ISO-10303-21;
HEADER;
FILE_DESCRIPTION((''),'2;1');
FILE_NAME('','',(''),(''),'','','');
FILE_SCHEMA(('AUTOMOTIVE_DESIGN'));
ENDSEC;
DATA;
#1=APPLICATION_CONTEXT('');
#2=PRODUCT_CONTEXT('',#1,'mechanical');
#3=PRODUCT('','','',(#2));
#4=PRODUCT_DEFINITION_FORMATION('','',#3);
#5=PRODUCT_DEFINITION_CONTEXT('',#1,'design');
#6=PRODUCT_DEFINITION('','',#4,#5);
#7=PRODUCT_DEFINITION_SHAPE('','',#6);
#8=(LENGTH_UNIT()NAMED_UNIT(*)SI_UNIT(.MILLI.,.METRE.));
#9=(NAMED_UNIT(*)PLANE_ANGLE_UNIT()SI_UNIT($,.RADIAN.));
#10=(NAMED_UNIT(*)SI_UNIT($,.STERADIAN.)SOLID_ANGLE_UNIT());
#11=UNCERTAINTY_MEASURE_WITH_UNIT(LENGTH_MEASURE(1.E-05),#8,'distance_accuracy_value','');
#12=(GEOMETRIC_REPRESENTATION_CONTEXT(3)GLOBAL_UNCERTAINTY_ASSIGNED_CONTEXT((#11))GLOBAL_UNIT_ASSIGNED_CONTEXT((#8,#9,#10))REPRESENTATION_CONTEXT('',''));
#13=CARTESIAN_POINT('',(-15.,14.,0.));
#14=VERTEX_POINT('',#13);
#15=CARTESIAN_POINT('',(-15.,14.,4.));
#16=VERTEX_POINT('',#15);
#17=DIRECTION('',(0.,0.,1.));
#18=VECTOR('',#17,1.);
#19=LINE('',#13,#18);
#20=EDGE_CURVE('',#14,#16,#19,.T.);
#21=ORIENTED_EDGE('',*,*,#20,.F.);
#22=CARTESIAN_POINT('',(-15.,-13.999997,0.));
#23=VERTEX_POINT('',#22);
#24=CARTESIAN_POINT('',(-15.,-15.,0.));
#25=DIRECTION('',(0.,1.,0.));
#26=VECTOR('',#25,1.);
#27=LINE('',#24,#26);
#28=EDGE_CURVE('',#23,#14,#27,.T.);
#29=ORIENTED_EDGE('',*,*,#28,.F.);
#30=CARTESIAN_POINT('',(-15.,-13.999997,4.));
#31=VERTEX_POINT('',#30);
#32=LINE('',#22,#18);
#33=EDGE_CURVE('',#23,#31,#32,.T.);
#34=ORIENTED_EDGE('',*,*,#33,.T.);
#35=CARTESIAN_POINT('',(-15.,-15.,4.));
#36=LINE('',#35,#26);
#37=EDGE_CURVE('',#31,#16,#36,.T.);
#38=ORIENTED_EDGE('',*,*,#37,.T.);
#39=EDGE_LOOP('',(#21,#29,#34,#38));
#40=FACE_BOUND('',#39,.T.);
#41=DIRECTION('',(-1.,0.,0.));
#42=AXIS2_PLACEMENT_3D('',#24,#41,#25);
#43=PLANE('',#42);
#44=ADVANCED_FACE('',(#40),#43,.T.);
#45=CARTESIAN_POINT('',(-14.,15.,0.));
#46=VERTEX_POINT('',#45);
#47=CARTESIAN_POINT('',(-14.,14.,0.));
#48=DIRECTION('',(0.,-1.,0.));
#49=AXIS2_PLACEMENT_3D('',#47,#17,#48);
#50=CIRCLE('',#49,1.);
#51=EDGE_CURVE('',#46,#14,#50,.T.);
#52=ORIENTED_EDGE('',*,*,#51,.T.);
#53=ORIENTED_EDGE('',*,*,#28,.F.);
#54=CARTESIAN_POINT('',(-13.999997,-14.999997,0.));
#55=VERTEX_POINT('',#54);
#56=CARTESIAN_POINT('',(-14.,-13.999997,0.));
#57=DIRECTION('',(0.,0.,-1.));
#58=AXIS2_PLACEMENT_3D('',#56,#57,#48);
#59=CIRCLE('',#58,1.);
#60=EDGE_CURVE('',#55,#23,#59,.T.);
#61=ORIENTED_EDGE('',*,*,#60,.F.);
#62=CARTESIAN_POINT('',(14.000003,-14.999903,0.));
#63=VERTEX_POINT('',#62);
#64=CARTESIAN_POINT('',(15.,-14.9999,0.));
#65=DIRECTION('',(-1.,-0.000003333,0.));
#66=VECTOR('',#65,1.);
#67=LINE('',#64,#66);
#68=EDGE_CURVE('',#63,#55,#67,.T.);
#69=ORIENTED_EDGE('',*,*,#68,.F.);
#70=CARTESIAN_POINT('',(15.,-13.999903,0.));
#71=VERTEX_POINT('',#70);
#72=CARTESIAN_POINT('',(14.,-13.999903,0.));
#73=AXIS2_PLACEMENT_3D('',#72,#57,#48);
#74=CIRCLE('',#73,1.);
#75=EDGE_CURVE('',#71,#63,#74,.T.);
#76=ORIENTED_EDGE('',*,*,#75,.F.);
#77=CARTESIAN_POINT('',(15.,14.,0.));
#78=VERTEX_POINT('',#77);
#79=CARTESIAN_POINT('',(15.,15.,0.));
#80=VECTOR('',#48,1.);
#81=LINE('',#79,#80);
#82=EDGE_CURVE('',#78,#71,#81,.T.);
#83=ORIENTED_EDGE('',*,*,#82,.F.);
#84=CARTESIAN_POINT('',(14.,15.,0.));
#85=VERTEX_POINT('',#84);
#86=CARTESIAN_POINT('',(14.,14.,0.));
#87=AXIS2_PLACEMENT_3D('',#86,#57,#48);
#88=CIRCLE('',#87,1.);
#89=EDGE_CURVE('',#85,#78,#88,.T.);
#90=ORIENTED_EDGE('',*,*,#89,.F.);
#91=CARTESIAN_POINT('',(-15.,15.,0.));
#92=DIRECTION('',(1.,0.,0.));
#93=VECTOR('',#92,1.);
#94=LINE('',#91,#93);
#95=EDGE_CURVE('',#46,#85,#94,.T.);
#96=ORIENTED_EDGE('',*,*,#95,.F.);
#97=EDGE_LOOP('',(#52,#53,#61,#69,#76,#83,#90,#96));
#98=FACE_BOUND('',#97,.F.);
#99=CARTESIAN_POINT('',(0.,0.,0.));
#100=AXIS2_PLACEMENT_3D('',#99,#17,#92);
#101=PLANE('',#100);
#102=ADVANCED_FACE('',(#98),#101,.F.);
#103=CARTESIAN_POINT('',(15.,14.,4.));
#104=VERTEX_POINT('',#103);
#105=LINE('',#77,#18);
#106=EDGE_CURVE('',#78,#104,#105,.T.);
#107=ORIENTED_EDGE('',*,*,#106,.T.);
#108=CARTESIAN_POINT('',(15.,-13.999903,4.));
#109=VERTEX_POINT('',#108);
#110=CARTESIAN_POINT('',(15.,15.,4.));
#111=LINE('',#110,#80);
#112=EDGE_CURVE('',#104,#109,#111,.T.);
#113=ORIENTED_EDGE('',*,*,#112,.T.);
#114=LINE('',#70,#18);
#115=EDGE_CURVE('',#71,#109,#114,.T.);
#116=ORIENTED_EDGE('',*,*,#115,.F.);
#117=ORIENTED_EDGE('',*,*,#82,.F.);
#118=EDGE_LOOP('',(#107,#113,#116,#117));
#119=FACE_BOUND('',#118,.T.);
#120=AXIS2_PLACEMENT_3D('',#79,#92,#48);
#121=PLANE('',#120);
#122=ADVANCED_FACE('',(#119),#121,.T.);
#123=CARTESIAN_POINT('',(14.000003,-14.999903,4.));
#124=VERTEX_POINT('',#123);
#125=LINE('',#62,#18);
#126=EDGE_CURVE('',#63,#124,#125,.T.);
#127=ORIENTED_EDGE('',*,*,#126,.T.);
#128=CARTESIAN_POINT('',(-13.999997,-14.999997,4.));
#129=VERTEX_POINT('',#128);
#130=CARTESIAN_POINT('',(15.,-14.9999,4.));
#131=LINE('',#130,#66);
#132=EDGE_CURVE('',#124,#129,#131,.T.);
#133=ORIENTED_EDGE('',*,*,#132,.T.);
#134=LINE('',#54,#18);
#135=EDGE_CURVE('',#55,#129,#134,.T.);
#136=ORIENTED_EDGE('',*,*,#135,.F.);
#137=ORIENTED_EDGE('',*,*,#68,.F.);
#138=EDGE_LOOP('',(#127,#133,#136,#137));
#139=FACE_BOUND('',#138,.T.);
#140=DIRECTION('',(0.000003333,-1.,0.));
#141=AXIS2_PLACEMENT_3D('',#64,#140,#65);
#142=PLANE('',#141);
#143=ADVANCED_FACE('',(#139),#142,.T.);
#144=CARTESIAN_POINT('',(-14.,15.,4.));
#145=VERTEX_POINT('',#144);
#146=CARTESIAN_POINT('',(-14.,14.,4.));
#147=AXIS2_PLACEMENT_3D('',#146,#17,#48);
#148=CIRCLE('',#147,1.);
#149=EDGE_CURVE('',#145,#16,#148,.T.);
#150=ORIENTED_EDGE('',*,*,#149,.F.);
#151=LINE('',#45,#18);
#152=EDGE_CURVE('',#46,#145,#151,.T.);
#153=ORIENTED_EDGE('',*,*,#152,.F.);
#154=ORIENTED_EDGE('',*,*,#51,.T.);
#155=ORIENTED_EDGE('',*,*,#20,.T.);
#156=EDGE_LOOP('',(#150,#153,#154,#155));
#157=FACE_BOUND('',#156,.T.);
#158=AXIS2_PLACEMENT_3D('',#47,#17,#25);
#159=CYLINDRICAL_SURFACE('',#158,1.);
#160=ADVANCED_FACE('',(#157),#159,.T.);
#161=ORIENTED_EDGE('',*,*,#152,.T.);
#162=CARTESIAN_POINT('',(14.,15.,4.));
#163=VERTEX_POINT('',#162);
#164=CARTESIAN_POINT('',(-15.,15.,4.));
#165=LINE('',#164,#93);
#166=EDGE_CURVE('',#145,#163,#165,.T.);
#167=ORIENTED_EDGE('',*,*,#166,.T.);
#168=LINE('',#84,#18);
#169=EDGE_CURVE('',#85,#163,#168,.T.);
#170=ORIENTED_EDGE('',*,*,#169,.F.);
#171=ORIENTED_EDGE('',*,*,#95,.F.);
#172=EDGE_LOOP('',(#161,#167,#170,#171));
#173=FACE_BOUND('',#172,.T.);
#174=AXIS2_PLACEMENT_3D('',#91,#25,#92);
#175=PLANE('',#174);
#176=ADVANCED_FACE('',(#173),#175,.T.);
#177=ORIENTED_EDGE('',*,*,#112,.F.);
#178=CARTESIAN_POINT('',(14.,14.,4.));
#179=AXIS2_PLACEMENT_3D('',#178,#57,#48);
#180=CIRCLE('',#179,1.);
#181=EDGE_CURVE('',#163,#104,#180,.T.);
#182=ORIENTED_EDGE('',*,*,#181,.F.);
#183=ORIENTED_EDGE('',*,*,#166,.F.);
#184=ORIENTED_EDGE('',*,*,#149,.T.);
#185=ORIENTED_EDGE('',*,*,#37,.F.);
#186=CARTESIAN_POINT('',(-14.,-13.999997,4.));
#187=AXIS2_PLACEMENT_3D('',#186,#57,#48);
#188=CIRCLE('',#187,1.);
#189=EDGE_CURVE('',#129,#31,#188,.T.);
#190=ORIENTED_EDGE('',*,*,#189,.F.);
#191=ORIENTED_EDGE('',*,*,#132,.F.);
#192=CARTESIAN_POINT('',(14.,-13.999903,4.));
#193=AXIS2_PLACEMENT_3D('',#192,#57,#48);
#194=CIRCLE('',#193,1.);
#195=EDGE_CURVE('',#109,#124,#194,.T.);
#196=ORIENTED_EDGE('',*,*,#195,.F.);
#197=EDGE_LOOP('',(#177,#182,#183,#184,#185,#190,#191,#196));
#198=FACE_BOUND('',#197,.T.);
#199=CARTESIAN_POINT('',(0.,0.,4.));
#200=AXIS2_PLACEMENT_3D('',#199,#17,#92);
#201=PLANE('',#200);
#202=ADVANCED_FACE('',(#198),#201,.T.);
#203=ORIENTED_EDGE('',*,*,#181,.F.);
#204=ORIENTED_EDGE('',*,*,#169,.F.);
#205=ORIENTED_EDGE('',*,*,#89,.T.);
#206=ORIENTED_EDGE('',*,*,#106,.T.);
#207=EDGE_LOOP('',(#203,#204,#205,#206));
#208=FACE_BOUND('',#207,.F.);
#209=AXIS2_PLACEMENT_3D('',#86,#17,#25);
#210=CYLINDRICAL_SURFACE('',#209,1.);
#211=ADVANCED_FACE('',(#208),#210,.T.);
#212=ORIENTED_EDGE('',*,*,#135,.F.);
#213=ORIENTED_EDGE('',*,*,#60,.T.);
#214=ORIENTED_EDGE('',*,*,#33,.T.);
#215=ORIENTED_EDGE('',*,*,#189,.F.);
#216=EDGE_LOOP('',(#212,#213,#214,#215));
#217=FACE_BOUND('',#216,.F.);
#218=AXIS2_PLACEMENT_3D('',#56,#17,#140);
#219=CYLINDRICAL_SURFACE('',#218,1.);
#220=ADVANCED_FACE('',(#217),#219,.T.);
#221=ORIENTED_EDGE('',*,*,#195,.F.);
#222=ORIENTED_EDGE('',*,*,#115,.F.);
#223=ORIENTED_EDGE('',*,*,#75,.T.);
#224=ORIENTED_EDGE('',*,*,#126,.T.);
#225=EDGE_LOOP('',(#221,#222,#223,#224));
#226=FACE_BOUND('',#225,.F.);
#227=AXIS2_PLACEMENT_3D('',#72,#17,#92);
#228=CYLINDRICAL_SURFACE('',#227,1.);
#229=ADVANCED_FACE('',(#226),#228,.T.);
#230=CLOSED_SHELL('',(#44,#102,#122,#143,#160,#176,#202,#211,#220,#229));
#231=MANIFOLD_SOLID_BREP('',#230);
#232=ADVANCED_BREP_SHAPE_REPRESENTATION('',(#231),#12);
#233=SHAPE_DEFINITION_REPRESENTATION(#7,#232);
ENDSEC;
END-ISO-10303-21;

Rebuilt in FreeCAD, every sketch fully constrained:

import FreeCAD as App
import Part
import Sketcher

V = App.Vector
Q = App.Units.Quantity


def edges_at(feature, points):
    """Names of the edges that pass closest to the given points."""
    edges = feature.Shape.Edges
    near = lambda p: min(range(len(edges)), key=lambda i: edges[i].distToShape(Part.Vertex(*p))[0])
    return sorted({f"Edge{near(p) + 1}" for p in points})

doc = App.newDocument("Part")
body = doc.addObject("PartDesign::Body", "Body")

# Sketch on XY plane
sketch1 = body.newObject("Sketcher::SketchObject", "Sketch")
sketch1.AttachmentSupport = (doc.getObject("XY_Plane"), [""])
sketch1.MapMode = "FlatFace"
sketch1.addGeometry(Part.LineSegment(V(15, 15, 0), V(-15, 15, 0)), False)
sketch1.addGeometry(Part.LineSegment(V(-15, 15, 0), V(-15, -15, 0)), False)
sketch1.addGeometry(Part.LineSegment(V(-15, -15, 0), V(15, -15, 0)), False)
sketch1.addGeometry(Part.LineSegment(V(15, -15, 0), V(15, 15, 0)), False)
sketch1.addConstraint(Sketcher.Constraint("Coincident", 0, 2, 1, 1))
sketch1.addConstraint(Sketcher.Constraint("Coincident", 1, 2, 2, 1))
sketch1.addConstraint(Sketcher.Constraint("Coincident", 2, 2, 3, 1))
sketch1.addConstraint(Sketcher.Constraint("Coincident", 3, 2, 0, 1))
sketch1.addConstraint(Sketcher.Constraint("Horizontal", 0))
sketch1.addConstraint(Sketcher.Constraint("Vertical", 1))
sketch1.addConstraint(Sketcher.Constraint("Horizontal", 2))
sketch1.addConstraint(Sketcher.Constraint("Vertical", 3))
sketch1.addConstraint(Sketcher.Constraint("Symmetric", 0, 2, 2, 2, -1, 1))
sketch1.addConstraint(Sketcher.Constraint("Equal", 2, 1))
sketch1.addConstraint(Sketcher.Constraint("DistanceX", 0, 2, 0, 1, Q("30 mm")))
pad1 = body.newObject("PartDesign::Pad", "Pad")
pad1.Profile = sketch1
pad1.Length = 4
doc.recompute()

fillet = body.newObject("PartDesign::Fillet", "Fillet")
fillet.Base = (pad1, edges_at(pad1, [
    (15, 15, 2),
    (-15, 15, 2),
    (15, -15, 2),
    (-15, -15, 2),
]))
fillet.Radius = 1

doc.recompute()
